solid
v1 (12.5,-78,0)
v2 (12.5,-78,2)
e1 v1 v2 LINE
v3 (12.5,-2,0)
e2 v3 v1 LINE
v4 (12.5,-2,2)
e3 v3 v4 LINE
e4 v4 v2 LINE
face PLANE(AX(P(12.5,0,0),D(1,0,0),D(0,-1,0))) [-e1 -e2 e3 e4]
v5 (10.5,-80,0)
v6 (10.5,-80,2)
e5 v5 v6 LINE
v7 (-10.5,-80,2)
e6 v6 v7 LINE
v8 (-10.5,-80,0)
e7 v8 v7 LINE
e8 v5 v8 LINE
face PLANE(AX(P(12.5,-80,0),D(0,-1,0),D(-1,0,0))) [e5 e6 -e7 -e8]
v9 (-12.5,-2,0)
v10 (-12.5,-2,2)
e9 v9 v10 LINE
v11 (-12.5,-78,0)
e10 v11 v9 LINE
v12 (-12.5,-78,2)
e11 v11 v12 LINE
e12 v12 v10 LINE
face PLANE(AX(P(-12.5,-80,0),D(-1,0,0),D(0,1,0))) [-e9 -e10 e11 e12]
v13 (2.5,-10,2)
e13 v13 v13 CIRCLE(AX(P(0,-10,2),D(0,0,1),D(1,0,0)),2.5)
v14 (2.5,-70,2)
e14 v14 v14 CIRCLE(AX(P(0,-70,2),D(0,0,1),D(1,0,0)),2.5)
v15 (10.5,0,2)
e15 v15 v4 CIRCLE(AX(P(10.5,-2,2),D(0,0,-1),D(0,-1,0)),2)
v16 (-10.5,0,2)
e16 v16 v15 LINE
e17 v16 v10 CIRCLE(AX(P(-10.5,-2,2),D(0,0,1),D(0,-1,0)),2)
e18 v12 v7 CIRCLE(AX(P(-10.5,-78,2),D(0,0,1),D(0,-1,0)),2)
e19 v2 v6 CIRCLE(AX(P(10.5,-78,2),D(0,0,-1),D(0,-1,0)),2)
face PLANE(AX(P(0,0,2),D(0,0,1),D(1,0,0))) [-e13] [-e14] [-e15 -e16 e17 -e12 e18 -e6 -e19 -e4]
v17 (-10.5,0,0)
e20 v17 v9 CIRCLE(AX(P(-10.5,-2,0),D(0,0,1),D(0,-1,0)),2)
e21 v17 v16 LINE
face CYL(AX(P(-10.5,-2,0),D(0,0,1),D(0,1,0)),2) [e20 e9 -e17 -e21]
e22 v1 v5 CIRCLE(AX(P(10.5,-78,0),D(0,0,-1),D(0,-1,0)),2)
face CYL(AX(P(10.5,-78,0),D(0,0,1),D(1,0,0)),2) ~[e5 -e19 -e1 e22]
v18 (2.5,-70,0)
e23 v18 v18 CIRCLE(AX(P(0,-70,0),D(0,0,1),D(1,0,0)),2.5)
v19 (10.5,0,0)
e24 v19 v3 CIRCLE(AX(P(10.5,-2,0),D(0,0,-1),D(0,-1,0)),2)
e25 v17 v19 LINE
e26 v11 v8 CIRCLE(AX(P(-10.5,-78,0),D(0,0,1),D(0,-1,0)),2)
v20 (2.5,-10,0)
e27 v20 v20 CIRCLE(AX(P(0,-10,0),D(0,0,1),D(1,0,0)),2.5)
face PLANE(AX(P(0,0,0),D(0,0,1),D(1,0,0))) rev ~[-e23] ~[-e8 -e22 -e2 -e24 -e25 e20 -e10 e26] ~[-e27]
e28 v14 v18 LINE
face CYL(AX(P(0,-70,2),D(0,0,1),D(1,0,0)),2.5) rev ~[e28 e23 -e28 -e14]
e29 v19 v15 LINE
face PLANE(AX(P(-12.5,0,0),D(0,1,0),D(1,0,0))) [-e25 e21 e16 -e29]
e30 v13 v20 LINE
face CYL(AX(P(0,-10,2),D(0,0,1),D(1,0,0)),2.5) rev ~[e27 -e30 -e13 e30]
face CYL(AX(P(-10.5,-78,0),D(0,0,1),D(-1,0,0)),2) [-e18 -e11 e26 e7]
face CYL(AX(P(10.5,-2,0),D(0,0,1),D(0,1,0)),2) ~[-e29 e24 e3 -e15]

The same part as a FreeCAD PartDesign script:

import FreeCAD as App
import Part
import Sketcher


def edges_at(feature, points):
    """Names of the edges that pass closest to the given points."""
    edges = feature.Shape.Edges
    near = lambda p: min(range(len(edges)), key=lambda i: edges[i].distToShape(Part.Vertex(*p))[0])
    return sorted({f"Edge{near(p) + 1}" for p in points})

doc = App.newDocument("Part")
body = doc.addObject("PartDesign::Body", "Body")

# Sketch on XY plane
sketch1 = body.newObject("Sketcher::SketchObject", "Sketch")
sketch1.AttachmentSupport = (doc.getObject("XY_Plane"), [""])
sketch1.MapMode = "FlatFace"
sketch1.addGeometry([
    Part.LineSegment(App.Vector(12, 0, 0), App.Vector(-12, 0, 0)),
    Part.LineSegment(App.Vector(-12, 0, 0), App.Vector(-12, -80, 0)),
    Part.LineSegment(App.Vector(-12, -80, 0), App.Vector(12, -80, 0)),
    Part.LineSegment(App.Vector(12, -80, 0), App.Vector(12, 0, 0)),
], False)
sketch1.addConstraint([
    Sketcher.Constraint("Coincident", 0, 2, 1, 1),
    Sketcher.Constraint("Coincident", 1, 2, 2, 1),
    Sketcher.Constraint("Coincident", 2, 2, 3, 1),
    Sketcher.Constraint("Coincident", 3, 2, 0, 1),
    Sketcher.Constraint("Horizontal", 0),
    Sketcher.Constraint("Vertical", 1),
    Sketcher.Constraint("Horizontal", 2),
    Sketcher.Constraint("Vertical", 3),
    Sketcher.Constraint("Symmetric", 0, 2, 3, 2, -1, 1),
    Sketcher.Constraint("DistanceX", 0, 2, 0, 1, 25.0),
    Sketcher.Constraint("DistanceY", 1, 2, 1, 1, 80.0),
])
pad1 = body.newObject("PartDesign::Pad", "Pad")
pad1.Profile = sketch1
pad1.Length = 2

# Sketch on XY plane
sketch2 = body.newObject("Sketcher::SketchObject", "Sketch001")
sketch2.AttachmentSupport = (doc.getObject("XY_Plane"), [""])
sketch2.MapMode = "FlatFace"
sketch2.AttachmentOffset = App.Placement(App.Vector(0, 0, 2), App.Rotation())
sketch2.addGeometry([
    Part.Circle(App.Vector(0, -70, 0), App.Vector(0, 0, 1), 2.5),
    Part.Circle(App.Vector(0, -10, 0), App.Vector(0, 0, 1), 2.5),
], False)
sketch2.addConstraint([
    Sketcher.Constraint("Equal", 0, 1),
    Sketcher.Constraint("PointOnObject", 0, 3, -2),
    Sketcher.Constraint("PointOnObject", 1, 3, -2),
    Sketcher.Constraint("Diameter", 0, 5.0),
    Sketcher.Constraint("DistanceY", 1, 3, -1, 1, 10.0),
    Sketcher.Constraint("DistanceY", 0, 3, -1, 1, 70.0),
])
pocket1 = body.newObject("PartDesign::Pocket", "Pocket")
pocket1.Profile = sketch2
pocket1.Type = "ThroughAll"
doc.recompute()

fillet = body.newObject("PartDesign::Fillet", "Fillet")
fillet.Base = (pocket1, edges_at(pocket1, [
    (-12.5, -80, 1),
    (12.5, -80, 1),
    (12.5, 0, 1),
    (-12.5, 0, 1),
]))
fillet.Radius = 2

doc.recompute()
